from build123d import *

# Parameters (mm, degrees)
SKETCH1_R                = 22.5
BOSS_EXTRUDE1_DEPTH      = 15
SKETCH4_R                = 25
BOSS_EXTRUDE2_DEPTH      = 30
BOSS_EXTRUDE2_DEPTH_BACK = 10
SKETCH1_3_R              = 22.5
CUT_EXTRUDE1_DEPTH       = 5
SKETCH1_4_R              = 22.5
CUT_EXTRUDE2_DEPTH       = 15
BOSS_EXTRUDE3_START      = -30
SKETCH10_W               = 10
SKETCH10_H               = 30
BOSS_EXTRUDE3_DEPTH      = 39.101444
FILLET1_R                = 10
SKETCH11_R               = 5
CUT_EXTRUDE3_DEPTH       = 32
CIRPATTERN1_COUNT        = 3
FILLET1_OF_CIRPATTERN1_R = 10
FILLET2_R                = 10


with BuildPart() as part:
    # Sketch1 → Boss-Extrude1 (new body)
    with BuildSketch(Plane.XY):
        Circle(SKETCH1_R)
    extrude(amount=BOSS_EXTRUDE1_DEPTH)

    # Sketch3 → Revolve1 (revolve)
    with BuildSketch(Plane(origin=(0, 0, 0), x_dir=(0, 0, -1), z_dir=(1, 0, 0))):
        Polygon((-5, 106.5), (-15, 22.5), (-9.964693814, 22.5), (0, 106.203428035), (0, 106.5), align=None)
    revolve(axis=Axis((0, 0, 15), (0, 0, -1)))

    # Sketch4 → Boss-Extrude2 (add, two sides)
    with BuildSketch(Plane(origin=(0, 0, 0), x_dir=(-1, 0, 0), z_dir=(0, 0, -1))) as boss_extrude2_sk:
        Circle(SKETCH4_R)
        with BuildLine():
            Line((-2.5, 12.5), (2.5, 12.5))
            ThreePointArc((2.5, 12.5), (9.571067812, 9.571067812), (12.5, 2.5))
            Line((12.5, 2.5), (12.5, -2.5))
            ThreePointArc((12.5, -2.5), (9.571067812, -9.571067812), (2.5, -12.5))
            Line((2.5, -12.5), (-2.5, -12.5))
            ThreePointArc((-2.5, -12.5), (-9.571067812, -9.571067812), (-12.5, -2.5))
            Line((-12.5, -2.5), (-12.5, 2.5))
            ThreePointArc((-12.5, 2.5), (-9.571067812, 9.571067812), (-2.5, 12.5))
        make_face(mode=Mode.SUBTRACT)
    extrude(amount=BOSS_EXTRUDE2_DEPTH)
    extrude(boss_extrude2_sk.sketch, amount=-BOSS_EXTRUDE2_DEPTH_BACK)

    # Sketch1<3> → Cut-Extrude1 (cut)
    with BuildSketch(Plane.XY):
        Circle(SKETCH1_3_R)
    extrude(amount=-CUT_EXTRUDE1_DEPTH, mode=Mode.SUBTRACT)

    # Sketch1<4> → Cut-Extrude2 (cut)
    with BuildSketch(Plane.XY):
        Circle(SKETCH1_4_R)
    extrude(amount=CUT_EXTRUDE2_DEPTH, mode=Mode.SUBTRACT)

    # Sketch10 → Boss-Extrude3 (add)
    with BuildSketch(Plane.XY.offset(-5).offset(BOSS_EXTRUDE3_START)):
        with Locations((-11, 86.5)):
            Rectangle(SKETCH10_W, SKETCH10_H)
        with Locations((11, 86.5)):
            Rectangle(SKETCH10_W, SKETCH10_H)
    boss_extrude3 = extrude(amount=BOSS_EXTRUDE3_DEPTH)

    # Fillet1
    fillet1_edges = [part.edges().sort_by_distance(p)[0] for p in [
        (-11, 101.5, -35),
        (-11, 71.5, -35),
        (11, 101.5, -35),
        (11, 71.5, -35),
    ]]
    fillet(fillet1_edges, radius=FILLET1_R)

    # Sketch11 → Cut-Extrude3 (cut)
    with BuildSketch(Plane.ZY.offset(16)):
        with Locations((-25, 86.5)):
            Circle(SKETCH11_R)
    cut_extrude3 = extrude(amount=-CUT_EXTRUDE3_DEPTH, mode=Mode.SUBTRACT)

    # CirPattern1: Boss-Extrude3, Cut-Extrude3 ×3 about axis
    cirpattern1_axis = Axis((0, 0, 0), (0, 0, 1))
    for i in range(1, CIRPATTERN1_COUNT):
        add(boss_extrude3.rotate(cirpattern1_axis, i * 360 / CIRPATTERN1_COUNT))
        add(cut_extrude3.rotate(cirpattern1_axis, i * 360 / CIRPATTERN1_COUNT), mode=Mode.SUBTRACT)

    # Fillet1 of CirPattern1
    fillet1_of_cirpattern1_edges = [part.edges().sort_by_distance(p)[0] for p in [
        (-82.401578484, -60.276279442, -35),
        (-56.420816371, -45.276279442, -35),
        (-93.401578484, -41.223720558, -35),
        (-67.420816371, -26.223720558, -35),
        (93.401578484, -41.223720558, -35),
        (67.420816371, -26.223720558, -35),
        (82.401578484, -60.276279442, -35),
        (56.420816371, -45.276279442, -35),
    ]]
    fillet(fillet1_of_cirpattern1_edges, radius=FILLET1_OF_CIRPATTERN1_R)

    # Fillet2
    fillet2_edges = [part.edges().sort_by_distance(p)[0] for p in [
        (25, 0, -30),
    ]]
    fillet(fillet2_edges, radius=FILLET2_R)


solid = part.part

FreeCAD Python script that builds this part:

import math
import FreeCAD as App
import Part
import Sketcher
Q = App.Units.Quantity


def edges_at(feature, points):
    """Names of the edges that pass closest to the given points."""
    edges = feature.Shape.Edges
    near = lambda p: min(range(len(edges)), key=lambda i: edges[i].distToShape(Part.Vertex(*p))[0])
    return sorted({f"Edge{near(p) + 1}" for p in points})


def add_polygon(sketch, points):
    """Adds a closed chain of lines whose ends are joined by coincident constraints."""
    first, n = sketch.GeometryCount, len(points)
    for a, b in zip(points, points[1:] + points[:1]):
        sketch.addGeometry(Part.LineSegment(App.Vector(*a, 0), App.Vector(*b, 0)), False)
    for i in range(n):
        sketch.addConstraint(Sketcher.Constraint("Coincident", first + i, 2, first + (i + 1) % n, 1))

doc = App.newDocument("Part")
params = doc.addObject("Spreadsheet::Sheet", "Params")
for row, (alias, value) in enumerate([
    ("sketch1_diameter", "45 mm"),
    ("pad1_length", "15 mm"),
    ("sketch2_height", "5 mm"),
    ("revolution_angle", "360 deg"),
    ("sketch3_diameter", "50 mm"),
    ("sketch3_radius", "10 mm"),
    ("sketch3_width", "5 mm"),
    ("pad2_length", "30 mm"),
    ("pad2_length2", "10 mm"),
    ("sketch4_diameter", "45 mm"),
    ("pocket1_length", "5 mm"),
    ("sketch5_diameter", "45 mm"),
    ("pocket2_length", "15 mm"),
    ("sketch6_width", "10 mm"),
    ("sketch6_height", "30 mm"),
    ("pad3_length", "39.101444 mm"),
    ("fillet_radius", "10 mm"),
    ("sketch7_diameter", "10 mm"),
    ("pocket3_length", "32 mm"),
    ("fillet2_radius", "10 mm"),
    ("fillet3_radius", "10 mm"),
], start=1):
    params.set(f"A{row}", alias)
    params.set(f"B{row}", "=" + value)
    params.setAlias(f"B{row}", alias)

body = doc.addObject("PartDesign::Body", "Body")

sketch1 = doc.addObject("Sketcher::SketchObject", "Sketch")
body.addObject(sketch1)
sketch1.AttachmentSupport = (doc.XY_Plane, [""])
sketch1.MapMode = "FlatFace"
sketch1.addGeometry(Part.Circle(App.Vector(0, 0, 0), App.Vector(0, 0, 1), 22), False)
sketch1.addConstraint([
    Sketcher.Constraint("Coincident", 0, 3, -1, 1),
    Sketcher.Constraint("Diameter", 0, Q("45 mm")),
])
sketch1.setExpression("Constraints[1]", "Params.sketch1_diameter")
pad1 = doc.addObject("PartDesign::Pad", "Pad")
body.addObject(pad1)
pad1.Profile = sketch1
pad1.setExpression("Length", "Params.pad1_length")

sketch2 = doc.addObject("Sketcher::SketchObject", "Sketch001")
body.addObject(sketch2)
sketch2.AttachmentSupport = (doc.YZ_Plane, [""])
sketch2.MapMode = "FlatFace"
add_polygon(sketch2, [(106.5, 5), (22.5, 15), (22.5, 9.96), (106.2, 0), (106.5, 0)])
sketch2.addConstraint([
    Sketcher.Constraint("Vertical", 1),
    Sketcher.Constraint("Horizontal", 3),
    Sketcher.Constraint("Vertical", 4),
    Sketcher.Constraint("PointOnObject", 2, 2, -1),
    Sketcher.Constraint("Parallel", 0, 2),
    Sketcher.Constraint("DistanceY", 4, 1, 4, 2, Q("5 mm")),
    Sketcher.Constraint("DistanceY", -1, 1, 0, 2, Q("15 mm")),
    Sketcher.Constraint("DistanceX", 1, 2, 3, 2, Q("84 mm")),
    Sketcher.Constraint("DistanceX", -1, 1, 0, 2, Q("22.5 mm")),
    Sketcher.Constraint("DistanceX", 3, 1, 3, 2, Q("0.296572 mm")),
])
sketch2.setExpression("Constraints[10]", "Params.sketch2_height")
revolution = doc.addObject("PartDesign::Revolution", "Revolution")
body.addObject(revolution)
revolution.Profile = sketch2
revolution.ReferenceAxis = (sketch2, ["V_Axis"])
revolution.setExpression("Angle", "Params.revolution_angle")

sketch3 = doc.addObject("Sketcher::SketchObject", "Sketch002")
body.addObject(sketch3)
sketch3.AttachmentSupport = (doc.XY_Plane, [""])
sketch3.MapMode = "FlatFace"
sketch3.addGeometry([
    Part.Circle(App.Vector(0, 0, 0), App.Vector(0, 0, 1), 25),
    Part.ArcOfCircle(Part.Circle(App.Vector(2, 2, 0), App.Vector(0, 0, 1), 10), math.radians(0), math.radians(90)),
    Part.LineSegment(App.Vector(2, 12, 0), App.Vector(-2, 12, 0)),
    Part.ArcOfCircle(Part.Circle(App.Vector(-2, 2, 0), App.Vector(0, 0, 1), 10), math.radians(90), math.radians(180)),
    Part.LineSegment(App.Vector(-12, 2, 0), App.Vector(-12, -2, 0)),
    Part.ArcOfCircle(Part.Circle(App.Vector(-2, -2, 0), App.Vector(0, 0, 1), 10), math.radians(180), math.radians(270)),
    Part.LineSegment(App.Vector(-2, -12, 0), App.Vector(2, -12, 0)),
    Part.ArcOfCircle(Part.Circle(App.Vector(2, -2, 0), App.Vector(0, 0, 1), 10), math.radians(-90), math.radians(0)),
    Part.LineSegment(App.Vector(12, -2, 0), App.Vector(12, 2, 0)),
], False)
sketch3.addConstraint([
    Sketcher.Constraint("Tangent", 1, 2, 2, 1),
    Sketcher.Constraint("Tangent", 2, 2, 3, 1),
    Sketcher.Constraint("Tangent", 3, 2, 4, 1),
    Sketcher.Constraint("Tangent", 4, 2, 5, 1),
    Sketcher.Constraint("Tangent", 5, 2, 6, 1),
    Sketcher.Constraint("Tangent", 6, 2, 7, 1),
    Sketcher.Constraint("Tangent", 7, 2, 8, 1),
    Sketcher.Constraint("Tangent", 8, 2, 1, 1),
    Sketcher.Constraint("Horizontal", 2),
    Sketcher.Constraint("Vertical", 4),
    Sketcher.Constraint("Horizontal", 6),
    Sketcher.Constraint("Vertical", 8),
    Sketcher.Constraint("Coincident", 0, 3, -1, 1),
    Sketcher.Constraint("Equal", 1, 3),
    Sketcher.Constraint("Equal", 3, 5),
    Sketcher.Constraint("Equal", 5, 7),
    Sketcher.Constraint("Symmetric", 1, 3, 5, 3, -1, 1),
    Sketcher.Constraint("Equal", 6, 4),
    Sketcher.Constraint("Diameter", 0, Q("50 mm")),
    Sketcher.Constraint("Radius", 1, Q("10 mm")),
    Sketcher.Constraint("DistanceX", 2, 2, 2, 1, Q("5 mm")),
])
sketch3.setExpression("Constraints[18]", "Params.sketch3_diameter")
sketch3.setExpression("Constraints[19]", "Params.sketch3_radius")
sketch3.setExpression("Constraints[20]", "Params.sketch3_width")
pad2 = doc.addObject("PartDesign::Pad", "Pad001")
body.addObject(pad2)
pad2.Profile = sketch3
pad2.Type = "TwoLengths"
pad2.setExpression("Length", "Params.pad2_length")
pad2.setExpression("Length2", "Params.pad2_length2")
pad2.Reversed = True

sketch4 = doc.addObject("Sketcher::SketchObject", "Sketch003")
body.addObject(sketch4)
sketch4.AttachmentSupport = (doc.XY_Plane, [""])
sketch4.MapMode = "FlatFace"
sketch4.addGeometry(Part.Circle(App.Vector(0, 0, 0), App.Vector(0, 0, 1), 22), False)
sketch4.addConstraint([
    Sketcher.Constraint("Coincident", 0, 3, -1, 1),
    Sketcher.Constraint("Diameter", 0, Q("45 mm")),
])
sketch4.setExpression("Constraints[1]", "Params.sketch4_diameter")
pocket1 = doc.addObject("PartDesign::Pocket", "Pocket")
body.addObject(pocket1)
pocket1.Profile = sketch4
pocket1.setExpression("Length", "Params.pocket1_length")

sketch5 = doc.addObject("Sketcher::SketchObject", "Sketch004")
body.addObject(sketch5)
sketch5.AttachmentSupport = (doc.XY_Plane, [""])
sketch5.MapMode = "FlatFace"
sketch5.addGeometry(Part.Circle(App.Vector(0, 0, 0), App.Vector(0, 0, 1), 22), False)
sketch5.addConstraint([
    Sketcher.Constraint("Coincident", 0, 3, -1, 1),
    Sketcher.Constraint("Diameter", 0, Q("45 mm")),
])
sketch5.setExpression("Constraints[1]", "Params.sketch5_diameter")
pocket2 = doc.addObject("PartDesign::Pocket", "Pocket001")
body.addObject(pocket2)
pocket2.Profile = sketch5
pocket2.setExpression("Length", "Params.pocket2_length")
pocket2.Reversed = True

sketch6 = doc.addObject("Sketcher::SketchObject", "Sketch005")
body.addObject(sketch6)
sketch6.AttachmentSupport = (doc.XY_Plane, [""])
sketch6.MapMode = "FlatFace"
sketch6.AttachmentOffset = App.Placement(App.Vector(0, 0, -35), App.Rotation())
add_polygon(sketch6, [(-16, 102), (-16, 72), (-6, 72), (-6, 102)])
add_polygon(sketch6, [(6, 102), (6, 72), (16, 72), (16, 102)])
sketch6.addConstraint([
    Sketcher.Constraint("Vertical", 0),
    Sketcher.Constraint("Horizontal", 1),
    Sketcher.Constraint("Vertical", 2),
    Sketcher.Constraint("Horizontal", 3),
    Sketcher.Constraint("Vertical", 4),
    Sketcher.Constraint("Horizontal", 5),
    Sketcher.Constraint("Vertical", 6),
    Sketcher.Constraint("Horizontal", 7),
    Sketcher.Constraint("Symmetric", 1, 2, 4, 2, -2),
    Sketcher.Constraint("Symmetric", 3, 2, 6, 2, -2),
    Sketcher.Constraint("DistanceX", 1, 1, 1, 2, Q("10 mm")),
    Sketcher.Constraint("DistanceY", 0, 2, 0, 1, Q("30 mm")),
    Sketcher.Constraint("DistanceX", 0, 2, -1, 1, Q("16 mm")),
    Sketcher.Constraint("DistanceY", -1, 1, 0, 2, Q("71.5 mm")),
])
sketch6.setExpression("Constraints[18]", "Params.sketch6_width")
sketch6.setExpression("Constraints[19]", "Params.sketch6_height")
pad3 = doc.addObject("PartDesign::Pad", "Pad002")
body.addObject(pad3)
pad3.Profile = sketch6
pad3.setExpression("Length", "Params.pad3_length")
doc.recompute()

fillet = doc.addObject("PartDesign::Fillet", "Fillet")
body.addObject(fillet)
fillet.Base = (pad3, edges_at(pad3, [
    (-11, 101.5, -35),
    (-11, 71.5, -35),
    (11, 101.5, -35),
    (11, 71.5, -35),
]))
fillet.setExpression("Radius", "Params.fillet_radius")

sketch7 = doc.addObject("Sketcher::SketchObject", "Sketch006")
body.addObject(sketch7)
sketch7.AttachmentSupport = (doc.YZ_Plane, [""])
sketch7.MapMode = "FlatFace"
sketch7.AttachmentOffset = App.Placement(App.Vector(0, 0, -16), App.Rotation())
sketch7.addGeometry(Part.Circle(App.Vector(86, -25, 0), App.Vector(0, 0, 1), 5), False)
sketch7.addConstraint([
    Sketcher.Constraint("Diameter", 0, Q("10 mm")),
    Sketcher.Constraint("DistanceY", 0, 3, -1, 1, Q("25 mm")),
    Sketcher.Constraint("DistanceX", -1, 1, 0, 3, Q("86.5 mm")),
])
sketch7.setExpression("Constraints[0]", "Params.sketch7_diameter")
pocket3 = doc.addObject("PartDesign::Pocket", "Pocket002")
body.addObject(pocket3)
pocket3.Profile = sketch7
pocket3.setExpression("Length", "Params.pocket3_length")
pocket3.Reversed = True
doc.recompute()

polarpattern = doc.addObject("PartDesign::PolarPattern", "PolarPattern")
body.addObject(polarpattern)
polarpattern.Originals = [pad3, pocket3]
polarpattern.Axis = (doc.Z_Axis, [""])
polarpattern.Angle = 360
polarpattern.Occurrences = 3
body.Tip = polarpattern
doc.recompute()

fillet2 = doc.addObject("PartDesign::Fillet", "Fillet001")
body.addObject(fillet2)
fillet2.Base = (polarpattern, edges_at(polarpattern, [
    (-82.402, -60.276, -35),
    (-56.421, -45.276, -35),
    (-93.402, -41.224, -35),
    (-67.421, -26.224, -35),
    (93.402, -41.224, -35),
    (67.421, -26.224, -35),
    (82.402, -60.276, -35),
    (56.421, -45.276, -35),
]))
fillet2.setExpression("Radius", "Params.fillet2_radius")
doc.recompute()

fillet3 = doc.addObject("PartDesign::Fillet", "Fillet002")
body.addObject(fillet3)
fillet3.Base = (fillet2, edges_at(fillet2, [(25, 0, -30)]))
fillet3.setExpression("Radius", "Params.fillet3_radius")

doc.recompute()
